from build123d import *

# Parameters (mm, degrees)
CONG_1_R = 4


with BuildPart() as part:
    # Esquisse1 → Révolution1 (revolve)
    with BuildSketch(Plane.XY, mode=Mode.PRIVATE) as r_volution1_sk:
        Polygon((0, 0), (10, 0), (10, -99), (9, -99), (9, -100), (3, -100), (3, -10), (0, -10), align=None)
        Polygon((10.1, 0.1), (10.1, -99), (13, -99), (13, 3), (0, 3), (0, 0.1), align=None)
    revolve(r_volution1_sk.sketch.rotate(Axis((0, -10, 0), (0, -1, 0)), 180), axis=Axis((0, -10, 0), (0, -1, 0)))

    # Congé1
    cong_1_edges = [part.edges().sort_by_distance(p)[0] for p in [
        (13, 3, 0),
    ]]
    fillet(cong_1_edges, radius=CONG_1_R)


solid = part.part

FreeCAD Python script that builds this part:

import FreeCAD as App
import Part
import Sketcher
Q = App.Units.Quantity


def edges_at(feature, points):
    """Names of the edges that pass closest to the given points."""
    edges = feature.Shape.Edges
    near = lambda p: min(range(len(edges)), key=lambda i: edges[i].distToShape(Part.Vertex(*p))[0])
    return sorted({f"Edge{near(p) + 1}" for p in points})


def add_polygon(sketch, points):
    """Adds a closed chain of lines whose ends are joined by coincident constraints."""
    first, n = sketch.GeometryCount, len(points)
    for a, b in zip(points, points[1:] + points[:1]):
        sketch.addGeometry(Part.LineSegment(App.Vector(*a, 0), App.Vector(*b, 0)), False)
    for i in range(n):
        sketch.addConstraint(Sketcher.Constraint("Coincident", first + i, 2, first + (i + 1) % n, 1))

doc = App.newDocument("Part")
body = doc.addObject("PartDesign::Body", "Body")
body.AllowCompound = True

# Sketch on XY plane
sketch1 = doc.addObject("Sketcher::SketchObject", "Sketch")
body.addObject(sketch1)
sketch1.AttachmentSupport = (doc.XY_Plane, [""])
sketch1.MapMode = "FlatFace"
add_polygon(sketch1, [(10, 0), (0, 0), (0, -10), (3, -10), (3, -100), (9, -100), (9, -99), (10, -99)])  # lines 0-7
add_polygon(sketch1, [(10.1, 0.1), (10.1, -99), (13, -99), (13, 3), (0, 3), (0, 0.1)])  # lines 8-13
sketch1.addConstraint([
    Sketcher.Constraint("Horizontal", 0),
    Sketcher.Constraint("Vertical", 1),
    Sketcher.Constraint("Horizontal", 2),
    Sketcher.Constraint("Vertical", 3),
    Sketcher.Constraint("Horizontal", 4),
    Sketcher.Constraint("Vertical", 5),
    Sketcher.Constraint("Horizontal", 6),
    Sketcher.Constraint("Vertical", 7),
    Sketcher.Constraint("Vertical", 8),
    Sketcher.Constraint("Horizontal", 9),
    Sketcher.Constraint("Vertical", 10),
    Sketcher.Constraint("Horizontal", 11),
    Sketcher.Constraint("Vertical", 12),
    Sketcher.Constraint("Horizontal", 13),
    Sketcher.Constraint("Coincident", 0, 2, -1, 1),
    Sketcher.Constraint("PointOnObject", 11, 2, -2),
    Sketcher.Constraint("Horizontal", 6, 2, 8, 2),
    Sketcher.Constraint("Equal", 0, 1),
    Sketcher.Constraint("Equal", 6, 5),
    Sketcher.Constraint("Equal", 9, 12),
    Sketcher.Constraint("DistanceX", 0, 2, 0, 1, Q("10 mm")),
    Sketcher.Constraint("DistanceX", 2, 1, 2, 2, Q("3 mm")),
    Sketcher.Constraint("DistanceX", 4, 1, 4, 2, Q("6 mm")),
    Sketcher.Constraint("DistanceX", 11, 2, 11, 1, Q("13 mm")),
    Sketcher.Constraint("DistanceY", 3, 2, 3, 1, Q("90 mm")),
    Sketcher.Constraint("DistanceY", 10, 1, 10, 2, Q("102 mm")),
    Sketcher.Constraint("DistanceX", 9, 1, 9, 2, Q("2.9 mm")),
])
revolution = doc.addObject("PartDesign::Revolution", "Revolution")
body.addObject(revolution)
revolution.Profile = sketch1
revolution.ReferenceAxis = (sketch1, ["V_Axis"])
revolution.Angle = 360
doc.recompute()

fillet = doc.addObject("PartDesign::Fillet", "Fillet")
body.addObject(fillet)
fillet.Base = (revolution, edges_at(revolution, [(13, 3, 0)]))
fillet.Radius = 4

doc.recompute()
